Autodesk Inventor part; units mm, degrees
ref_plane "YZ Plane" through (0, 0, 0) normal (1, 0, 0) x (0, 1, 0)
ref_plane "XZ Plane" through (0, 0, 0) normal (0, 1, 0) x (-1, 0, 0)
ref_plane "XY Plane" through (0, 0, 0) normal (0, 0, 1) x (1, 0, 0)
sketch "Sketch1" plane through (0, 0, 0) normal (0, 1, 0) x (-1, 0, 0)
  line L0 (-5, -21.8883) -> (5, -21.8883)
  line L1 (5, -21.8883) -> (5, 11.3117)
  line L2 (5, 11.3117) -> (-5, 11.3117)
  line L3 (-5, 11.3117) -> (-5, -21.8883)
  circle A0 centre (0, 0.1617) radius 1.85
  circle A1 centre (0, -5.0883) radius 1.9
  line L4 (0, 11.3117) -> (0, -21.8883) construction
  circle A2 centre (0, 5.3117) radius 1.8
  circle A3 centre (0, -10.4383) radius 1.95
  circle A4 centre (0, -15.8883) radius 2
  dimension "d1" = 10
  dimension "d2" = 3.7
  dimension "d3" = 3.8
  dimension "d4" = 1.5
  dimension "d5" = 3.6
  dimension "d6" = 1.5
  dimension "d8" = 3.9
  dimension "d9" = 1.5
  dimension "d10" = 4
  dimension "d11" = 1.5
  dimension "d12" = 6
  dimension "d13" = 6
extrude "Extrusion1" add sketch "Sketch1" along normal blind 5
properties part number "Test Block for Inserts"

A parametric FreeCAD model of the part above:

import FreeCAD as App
import Part
import Sketcher

V = App.Vector


def add_polygon(sketch, points):
    """Adds a closed chain of lines whose ends are joined by coincident constraints."""
    first, n = sketch.GeometryCount, len(points)
    for a, b in zip(points, points[1:] + points[:1]):
        sketch.addGeometry(Part.LineSegment(App.Vector(*a, 0), App.Vector(*b, 0)), False)
    for i in range(n):
        sketch.addConstraint(Sketcher.Constraint("Coincident", first + i, 2, first + (i + 1) % n, 1))

doc = App.newDocument("Part")
params = doc.addObject("Spreadsheet::Sheet", "Params")
for row, (alias, value) in enumerate([
    ("sketch1_diameter", "4 mm"),
    ("sketch1_diameter2", "3.9 mm"),
    ("sketch1_diameter3", "3.8 mm"),
    ("sketch1_diameter4", "3.7 mm"),
    ("sketch1_diameter5", "3.6 mm"),
    ("pad1_length", "5 mm"),
], start=1):
    params.set(f"A{row}", alias)
    params.set(f"B{row}", "=" + value)
    params.setAlias(f"B{row}", alias)

body = doc.addObject("PartDesign::Body", "Body")

sketch1 = body.newObject("Sketcher::SketchObject", "Sketch")
sketch1.AttachmentSupport = (doc.getObject("XZ_Plane"), [""])
sketch1.MapMode = "FlatFace"
add_polygon(sketch1, [(5, 11.3), (5, -21.9), (-5, -21.9), (-5, 11.3)])
sketch1.addGeometry(Part.Circle(V(0, -15.9, 0), V(0, 0, 1), 2), False)
sketch1.addGeometry(Part.Circle(V(0, -10.4, 0), V(0, 0, 1), 1.9), False)
sketch1.addGeometry(Part.Circle(V(0, -5.1, 0), V(0, 0, 1), 1.9), False)
sketch1.addGeometry(Part.Circle(V(0, 0.2, 0), V(0, 0, 1), 1.9), False)
sketch1.addGeometry(Part.Circle(V(0, 5.3, 0), V(0, 0, 1), 1.8), False)
sketch1.addConstraint(Sketcher.Constraint("Vertical", 0))
sketch1.addConstraint(Sketcher.Constraint("Horizontal", 1))
sketch1.addConstraint(Sketcher.Constraint("Vertical", 2))
sketch1.addConstraint(Sketcher.Constraint("Horizontal", 3))
sketch1.addConstraint(Sketcher.Constraint("PointOnObject", 4, 3, -2))
sketch1.addConstraint(Sketcher.Constraint("PointOnObject", 5, 3, -2))
sketch1.addConstraint(Sketcher.Constraint("PointOnObject", 6, 3, -2))
sketch1.addConstraint(Sketcher.Constraint("PointOnObject", 7, 3, -2))
sketch1.addConstraint(Sketcher.Constraint("PointOnObject", 8, 3, -2))
sketch1.addConstraint(Sketcher.Constraint("Diameter", 4, 4.0))
sketch1.addConstraint(Sketcher.Constraint("Diameter", 5, 3.9))
sketch1.addConstraint(Sketcher.Constraint("Diameter", 6, 3.8))
sketch1.addConstraint(Sketcher.Constraint("Diameter", 7, 3.7))
sketch1.addConstraint(Sketcher.Constraint("Diameter", 8, 3.6))
sketch1.addConstraint(Sketcher.Constraint("DistanceX", 1, 2, 1, 1, 10.0))
sketch1.addConstraint(Sketcher.Constraint("DistanceY", 0, 2, 4, 3, 6.0))
sketch1.addConstraint(Sketcher.Constraint("DistanceY", 8, 3, 2, 2, 6.0))
sketch1.addConstraint(Sketcher.Constraint("DistanceY", 0, 2, 0, 1, 33.2))
sketch1.addConstraint(Sketcher.Constraint("DistanceX", -1, 1, 0, 2, 5.0))
sketch1.addConstraint(Sketcher.Constraint("DistanceY", 4, 3, 6, 3, 10.8))
sketch1.addConstraint(Sketcher.Constraint("DistanceY", 5, 3, 7, 3, 10.6))
sketch1.addConstraint(Sketcher.Constraint("DistanceY", 4, 3, 5, 3, 5.45))
sketch1.addConstraint(Sketcher.Constraint("DistanceY", 4, 3, -1, 1, 15.8883))
sketch1.setExpression("Constraints[13]", "Params.sketch1_diameter")
sketch1.setExpression("Constraints[14]", "Params.sketch1_diameter2")
sketch1.setExpression("Constraints[15]", "Params.sketch1_diameter3")
sketch1.setExpression("Constraints[16]", "Params.sketch1_diameter4")
sketch1.setExpression("Constraints[17]", "Params.sketch1_diameter5")
pad1 = body.newObject("PartDesign::Pad", "Pad")
pad1.Profile = sketch1
pad1.setExpression("Length", "Params.pad1_length")
pad1.Reversed = True

doc.recompute()
